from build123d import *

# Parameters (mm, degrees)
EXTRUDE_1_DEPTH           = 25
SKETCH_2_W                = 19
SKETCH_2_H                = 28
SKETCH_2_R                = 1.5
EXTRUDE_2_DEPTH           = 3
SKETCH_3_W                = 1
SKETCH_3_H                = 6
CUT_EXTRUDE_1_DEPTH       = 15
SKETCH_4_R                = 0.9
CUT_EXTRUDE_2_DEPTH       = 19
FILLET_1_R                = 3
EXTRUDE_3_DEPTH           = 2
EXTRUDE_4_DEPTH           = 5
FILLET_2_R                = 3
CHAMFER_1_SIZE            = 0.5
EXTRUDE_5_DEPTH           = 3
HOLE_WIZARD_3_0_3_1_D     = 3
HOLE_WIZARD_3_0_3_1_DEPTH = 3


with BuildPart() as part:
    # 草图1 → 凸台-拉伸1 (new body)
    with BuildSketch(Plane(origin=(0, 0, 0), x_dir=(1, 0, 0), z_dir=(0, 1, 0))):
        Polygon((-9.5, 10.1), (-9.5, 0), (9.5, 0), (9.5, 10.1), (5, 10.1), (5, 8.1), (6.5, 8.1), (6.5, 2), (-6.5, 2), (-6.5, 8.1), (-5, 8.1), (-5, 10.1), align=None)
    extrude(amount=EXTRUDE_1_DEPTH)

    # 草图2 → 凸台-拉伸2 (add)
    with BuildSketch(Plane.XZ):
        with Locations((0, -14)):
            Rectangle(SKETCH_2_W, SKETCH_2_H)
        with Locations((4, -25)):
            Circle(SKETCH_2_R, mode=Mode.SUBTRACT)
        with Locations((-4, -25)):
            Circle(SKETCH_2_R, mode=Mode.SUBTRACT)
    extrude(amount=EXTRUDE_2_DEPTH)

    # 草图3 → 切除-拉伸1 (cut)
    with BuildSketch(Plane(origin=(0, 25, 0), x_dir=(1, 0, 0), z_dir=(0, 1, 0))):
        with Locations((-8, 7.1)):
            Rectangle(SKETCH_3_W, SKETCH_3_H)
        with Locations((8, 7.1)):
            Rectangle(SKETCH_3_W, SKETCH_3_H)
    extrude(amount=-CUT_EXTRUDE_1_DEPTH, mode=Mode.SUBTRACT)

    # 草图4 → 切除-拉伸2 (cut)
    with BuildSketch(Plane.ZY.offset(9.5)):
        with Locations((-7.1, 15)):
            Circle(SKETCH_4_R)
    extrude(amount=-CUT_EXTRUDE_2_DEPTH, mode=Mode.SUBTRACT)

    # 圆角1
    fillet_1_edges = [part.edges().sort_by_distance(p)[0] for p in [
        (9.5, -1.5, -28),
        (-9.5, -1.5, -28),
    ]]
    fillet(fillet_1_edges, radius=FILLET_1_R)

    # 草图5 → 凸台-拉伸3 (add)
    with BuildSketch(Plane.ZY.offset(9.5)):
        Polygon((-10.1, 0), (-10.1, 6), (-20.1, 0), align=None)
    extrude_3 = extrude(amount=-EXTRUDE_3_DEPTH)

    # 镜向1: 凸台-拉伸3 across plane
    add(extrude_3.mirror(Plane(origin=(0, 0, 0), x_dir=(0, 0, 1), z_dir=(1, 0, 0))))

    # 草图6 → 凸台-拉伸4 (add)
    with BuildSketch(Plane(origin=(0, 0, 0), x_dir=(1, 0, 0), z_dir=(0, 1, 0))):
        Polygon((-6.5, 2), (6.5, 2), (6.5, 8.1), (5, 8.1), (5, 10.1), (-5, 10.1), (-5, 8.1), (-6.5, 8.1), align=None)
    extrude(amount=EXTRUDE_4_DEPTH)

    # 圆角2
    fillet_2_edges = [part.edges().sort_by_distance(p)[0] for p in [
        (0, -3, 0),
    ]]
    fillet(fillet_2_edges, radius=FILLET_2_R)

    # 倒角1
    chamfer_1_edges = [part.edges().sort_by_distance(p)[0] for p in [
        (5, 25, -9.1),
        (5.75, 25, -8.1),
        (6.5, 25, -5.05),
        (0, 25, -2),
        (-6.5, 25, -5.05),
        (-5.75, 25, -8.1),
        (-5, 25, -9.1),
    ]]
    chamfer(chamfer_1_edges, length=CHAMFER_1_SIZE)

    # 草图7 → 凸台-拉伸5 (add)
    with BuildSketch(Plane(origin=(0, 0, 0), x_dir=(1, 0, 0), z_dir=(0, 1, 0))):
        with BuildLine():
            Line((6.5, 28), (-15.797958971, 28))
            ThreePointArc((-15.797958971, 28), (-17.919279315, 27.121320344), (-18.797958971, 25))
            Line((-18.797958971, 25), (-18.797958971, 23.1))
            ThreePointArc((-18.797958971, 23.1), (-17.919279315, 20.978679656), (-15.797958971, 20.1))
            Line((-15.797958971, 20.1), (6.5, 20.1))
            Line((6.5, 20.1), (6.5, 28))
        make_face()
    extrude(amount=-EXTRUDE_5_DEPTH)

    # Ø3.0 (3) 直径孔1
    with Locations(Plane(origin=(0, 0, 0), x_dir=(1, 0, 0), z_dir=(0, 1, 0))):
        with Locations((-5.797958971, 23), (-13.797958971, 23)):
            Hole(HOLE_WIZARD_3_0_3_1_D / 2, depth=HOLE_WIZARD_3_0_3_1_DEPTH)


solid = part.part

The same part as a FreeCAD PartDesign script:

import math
import FreeCAD as App
import Part
import Sketcher

V = App.Vector
Q = App.Units.Quantity


def edges_at(feature, points):
    """Names of the edges that pass closest to the given points."""
    edges = feature.Shape.Edges
    near = lambda p: min(range(len(edges)), key=lambda i: edges[i].distToShape(Part.Vertex(*p))[0])
    return sorted({f"Edge{near(p) + 1}" for p in points})


def add_polygon(sketch, points):
    """Adds a closed chain of lines whose ends are joined by coincident constraints."""
    first, n = sketch.GeometryCount, len(points)
    for a, b in zip(points, points[1:] + points[:1]):
        sketch.addGeometry(Part.LineSegment(App.Vector(*a, 0), App.Vector(*b, 0)), False)
    for i in range(n):
        sketch.addConstraint(Sketcher.Constraint("Coincident", first + i, 2, first + (i + 1) % n, 1))

doc = App.newDocument("Part")
params = doc.addObject("Spreadsheet::Sheet", "Params")
for row, (alias, value) in enumerate([
    ("sketch1_width", "19 mm"),
    ("sketch1_width2", "13 mm"),
    ("sketch1_height", "2 mm"),
    ("sketch1_width3", "4.5 mm"),
    ("sketch1_height2", "10.1 mm"),
    ("pad1_length", "25 mm"),
    ("sketch2_diameter", "3 mm"),
    ("sketch2_width", "19 mm"),
    ("sketch2_height", "28 mm"),
    ("pad2_length", "3 mm"),
    ("sketch3_width", "1 mm"),
    ("sketch3_height", "6 mm"),
    ("pocket1_length", "15 mm"),
    ("sketch4_diameter", "1.8 mm"),
    ("pocket2_length", "19 mm"),
    ("fillet_radius", "3 mm"),
    ("sketch5_width", "6 mm"),
    ("sketch5_height", "10 mm"),
    ("pad3_length", "2 mm"),
    ("sketch6_width", "13 mm"),
    ("sketch6_width2", "10 mm"),
    ("sketch6_height", "2 mm"),
    ("sketch6_height2", "6.1 mm"),
    ("pad4_length", "5 mm"),
    ("fillet2_radius", "3 mm"),
    ("chamfer_size", "0.5 mm"),
    ("sketch7_radius", "3 mm"),
    ("sketch7_height", "1.9 mm"),
    ("pad5_length", "3 mm"),
    ("sketch8_diameter", "3 mm"),
    ("hole_diameter", "3 mm"),
    ("hole_depth", "3 mm"),
], start=1):
    params.set(f"A{row}", alias)
    params.set(f"B{row}", "=" + value)
    params.setAlias(f"B{row}", alias)

body = doc.addObject("PartDesign::Body", "Body")

# Sketch on XZ plane
sketch1 = body.newObject("Sketcher::SketchObject", "Sketch")
sketch1.AttachmentSupport = (doc.getObject("XZ_Plane"), [""])
sketch1.MapMode = "FlatFace"
add_polygon(sketch1, [(-9.5, -10.1), (-9.5, 0), (9.5, 0), (9.5, -10.1), (5, -10.1), (5, -8.1), (6.5, -8.1), (6.5, -2), (-6.5, -2), (-6.5, -8.1), (-5, -8.1), (-5, -10.1)])  # lines 0-11
sketch1.addConstraint(Sketcher.Constraint("Vertical", 0))
sketch1.addConstraint(Sketcher.Constraint("Horizontal", 1))
sketch1.addConstraint(Sketcher.Constraint("Vertical", 2))
sketch1.addConstraint(Sketcher.Constraint("Horizontal", 3))
sketch1.addConstraint(Sketcher.Constraint("Vertical", 4))
sketch1.addConstraint(Sketcher.Constraint("Horizontal", 5))
sketch1.addConstraint(Sketcher.Constraint("Vertical", 6))
sketch1.addConstraint(Sketcher.Constraint("Horizontal", 7))
sketch1.addConstraint(Sketcher.Constraint("Vertical", 8))
sketch1.addConstraint(Sketcher.Constraint("Horizontal", 9))
sketch1.addConstraint(Sketcher.Constraint("Vertical", 10))
sketch1.addConstraint(Sketcher.Constraint("Horizontal", 11))
sketch1.addConstraint(Sketcher.Constraint("Symmetric", 0, 2, 1, 2, -1, 1))
sketch1.addConstraint(Sketcher.Constraint("Symmetric", 5, 2, 8, 2, -2))
sketch1.addConstraint(Sketcher.Constraint("Symmetric", 3, 2, 10, 2, -2))
sketch1.addConstraint(Sketcher.Constraint("DistanceX", 1, 1, 1, 2, Q("19 mm")))
sketch1.addConstraint(Sketcher.Constraint("DistanceX", 7, 2, 7, 1, Q("13 mm")))
sketch1.addConstraint(Sketcher.Constraint("DistanceY", 4, 1, 4, 2, Q("2 mm")))
sketch1.addConstraint(Sketcher.Constraint("DistanceX", 3, 2, 3, 1, Q("4.5 mm")))
sketch1.addConstraint(Sketcher.Constraint("DistanceY", 0, 1, 0, 2, Q("10.1 mm")))
sketch1.addConstraint(Sketcher.Constraint("DistanceY", 6, 1, 6, 2, Q("6.1 mm")))
sketch1.setExpression("Constraints[27]", "Params.sketch1_width")
sketch1.setExpression("Constraints[28]", "Params.sketch1_width2")
sketch1.setExpression("Constraints[29]", "Params.sketch1_height")
sketch1.setExpression("Constraints[30]", "Params.sketch1_width3")
sketch1.setExpression("Constraints[31]", "Params.sketch1_height2")
pad1 = body.newObject("PartDesign::Pad", "Pad")
pad1.Profile = sketch1
pad1.setExpression("Length", "Params.pad1_length")
pad1.Reversed = True

# Sketch on XZ plane
sketch2 = body.newObject("Sketcher::SketchObject", "Sketch001")
sketch2.AttachmentSupport = (doc.getObject("XZ_Plane"), [""])
sketch2.MapMode = "FlatFace"
add_polygon(sketch2, [(-9.5, 0), (-9.5, -28), (9.5, -28), (9.5, 0)])  # lines 0-3
sketch2.addGeometry(Part.Circle(V(-4, -25, 0), V(0, 0, 1), 1.5), False)  # 4
sketch2.addGeometry(Part.Circle(V(4, -25, 0), V(0, 0, 1), 1.5), False)  # 5
sketch2.addConstraint(Sketcher.Constraint("Vertical", 0))
sketch2.addConstraint(Sketcher.Constraint("Horizontal", 1))
sketch2.addConstraint(Sketcher.Constraint("Vertical", 2))
sketch2.addConstraint(Sketcher.Constraint("Horizontal", 3))
sketch2.addConstraint(Sketcher.Constraint("Equal", 4, 5))
sketch2.addConstraint(Sketcher.Constraint("Symmetric", 2, 2, 3, 2, -1, 1))
sketch2.addConstraint(Sketcher.Constraint("Symmetric", 4, 3, 5, 3, -2))
sketch2.addConstraint(Sketcher.Constraint("Diameter", 4, Q("3 mm")))
sketch2.addConstraint(Sketcher.Constraint("DistanceX", 1, 1, 1, 2, Q("19 mm")))
sketch2.addConstraint(Sketcher.Constraint("DistanceY", 0, 2, 0, 1, Q("28 mm")))
sketch2.addConstraint(Sketcher.Constraint("DistanceX", 4, 3, -1, 1, Q("4 mm")))
sketch2.addConstraint(Sketcher.Constraint("DistanceY", 4, 3, -1, 1, Q("25 mm")))
sketch2.setExpression("Constraints[11]", "Params.sketch2_diameter")
sketch2.setExpression("Constraints[12]", "Params.sketch2_width")
sketch2.setExpression("Constraints[13]", "Params.sketch2_height")
pad2 = body.newObject("PartDesign::Pad", "Pad001")
pad2.Profile = sketch2
pad2.setExpression("Length", "Params.pad2_length")

# Sketch on XZ plane
sketch3 = body.newObject("Sketcher::SketchObject", "Sketch002")
sketch3.AttachmentSupport = (doc.getObject("XZ_Plane"), [""])
sketch3.MapMode = "FlatFace"
sketch3.AttachmentOffset = App.Placement(V(0, 0, -25), App.Rotation())
add_polygon(sketch3, [(-8.5, -10.1), (-8.5, -4.1), (-7.5, -4.1), (-7.5, -10.1)])  # lines 0-3
add_polygon(sketch3, [(7.5, -10.1), (7.5, -4.1), (8.5, -4.1), (8.5, -10.1)])  # lines 4-7
sketch3.addConstraint(Sketcher.Constraint("Vertical", 0))
sketch3.addConstraint(Sketcher.Constraint("Horizontal", 1))
sketch3.addConstraint(Sketcher.Constraint("Vertical", 2))
sketch3.addConstraint(Sketcher.Constraint("Horizontal", 3))
sketch3.addConstraint(Sketcher.Constraint("Vertical", 4))
sketch3.addConstraint(Sketcher.Constraint("Horizontal", 5))
sketch3.addConstraint(Sketcher.Constraint("Vertical", 6))
sketch3.addConstraint(Sketcher.Constraint("Horizontal", 7))
sketch3.addConstraint(Sketcher.Constraint("Symmetric", 1, 2, 4, 2, -2))
sketch3.addConstraint(Sketcher.Constraint("Symmetric", 3, 2, 6, 2, -2))
sketch3.addConstraint(Sketcher.Constraint("DistanceX", 1, 1, 1, 2, Q("1 mm")))
sketch3.addConstraint(Sketcher.Constraint("DistanceY", 0, 1, 0, 2, Q("6 mm")))
sketch3.addConstraint(Sketcher.Constraint("DistanceX", 1, 2, 4, 2, Q("15 mm")))
sketch3.addConstraint(Sketcher.Constraint("DistanceY", 0, 2, -1, 1, Q("4.1 mm")))
sketch3.setExpression("Constraints[18]", "Params.sketch3_width")
sketch3.setExpression("Constraints[19]", "Params.sketch3_height")
pocket1 = body.newObject("PartDesign::Pocket", "Pocket")
pocket1.Profile = sketch3
pocket1.setExpression("Length", "Params.pocket1_length")
pocket1.Reversed = True

# Sketch on YZ plane
sketch4 = body.newObject("Sketcher::SketchObject", "Sketch003")
sketch4.AttachmentSupport = (doc.getObject("YZ_Plane"), [""])
sketch4.MapMode = "FlatFace"
sketch4.AttachmentOffset = App.Placement(V(0, 0, -9.5), App.Rotation())
sketch4.addGeometry(Part.Circle(V(15, -7.1, 0), V(0, 0, 1), 0.9), False)
sketch4.addConstraint(Sketcher.Constraint("Diameter", 0, Q("1.8 mm")))
sketch4.addConstraint(Sketcher.Constraint("DistanceX", -1, 1, 0, 3, Q("15 mm")))
sketch4.addConstraint(Sketcher.Constraint("DistanceY", 0, 3, -1, 1, Q("7.1 mm")))
sketch4.setExpression("Constraints[0]", "Params.sketch4_diameter")
pocket2 = body.newObject("PartDesign::Pocket", "Pocket001")
pocket2.Profile = sketch4
pocket2.setExpression("Length", "Params.pocket2_length")
pocket2.Reversed = True
doc.recompute()

fillet = body.newObject("PartDesign::Fillet", "Fillet")
fillet.Base = (pocket2, edges_at(pocket2, [(9.5, -1.5, -28), (-9.5, -1.5, -28)]))
fillet.setExpression("Radius", "Params.fillet_radius")

# Sketch on YZ plane
sketch5 = body.newObject("Sketcher::SketchObject", "Sketch004")
sketch5.AttachmentSupport = (doc.getObject("YZ_Plane"), [""])
sketch5.MapMode = "FlatFace"
sketch5.AttachmentOffset = App.Placement(V(0, 0, -9.5), App.Rotation())
add_polygon(sketch5, [(0, -10), (6, -10), (0, -20)])  # lines 0-2
sketch5.addConstraint(Sketcher.Constraint("Horizontal", 0))
sketch5.addConstraint(Sketcher.Constraint("Vertical", 2))
sketch5.addConstraint(Sketcher.Constraint("PointOnObject", 1, 2, -2))
sketch5.addConstraint(Sketcher.Constraint("DistanceX", 0, 1, 0, 2, Q("6 mm")))
sketch5.addConstraint(Sketcher.Constraint("DistanceY", 2, 1, 2, 2, Q("10 mm")))
sketch5.addConstraint(Sketcher.Constraint("DistanceY", 0, 2, -1, 1, Q("10.1 mm")))
sketch5.setExpression("Constraints[6]", "Params.sketch5_width")
sketch5.setExpression("Constraints[7]", "Params.sketch5_height")
pad3 = body.newObject("PartDesign::Pad", "Pad002")
pad3.Profile = sketch5
pad3.setExpression("Length", "Params.pad3_length")
doc.recompute()

mirrored = body.newObject("PartDesign::Mirrored", "Mirrored")
mirrored.Originals = [pad3]
mirrored.MirrorPlane = (doc.getObject("YZ_Plane"), [""])
body.Tip = mirrored

# Sketch on XZ plane
sketch6 = body.newObject("Sketcher::SketchObject", "Sketch005")
sketch6.AttachmentSupport = (doc.getObject("XZ_Plane"), [""])
sketch6.MapMode = "FlatFace"
add_polygon(sketch6, [(-6.5, -2), (6.5, -2), (6.5, -8.1), (5, -8.1), (5, -10.1), (-5, -10.1), (-5, -8.1), (-6.5, -8.1)])  # lines 0-7
sketch6.addConstraint(Sketcher.Constraint("Horizontal", 0))
sketch6.addConstraint(Sketcher.Constraint("Vertical", 1))
sketch6.addConstraint(Sketcher.Constraint("Horizontal", 2))
sketch6.addConstraint(Sketcher.Constraint("Vertical", 3))
sketch6.addConstraint(Sketcher.Constraint("Horizontal", 4))
sketch6.addConstraint(Sketcher.Constraint("Vertical", 5))
sketch6.addConstraint(Sketcher.Constraint("Horizontal", 6))
sketch6.addConstraint(Sketcher.Constraint("Vertical", 7))
sketch6.addConstraint(Sketcher.Constraint("Symmetric", 2, 2, 5, 2, -2))
sketch6.addConstraint(Sketcher.Constraint("Equal", 2, 6))
sketch6.addConstraint(Sketcher.Constraint("DistanceX", 0, 1, 0, 2, Q("13 mm")))
sketch6.addConstraint(Sketcher.Constraint("DistanceX", 4, 2, 4, 1, Q("10 mm")))
sketch6.addConstraint(Sketcher.Constraint("DistanceY", 3, 2, 3, 1, Q("2 mm")))
sketch6.addConstraint(Sketcher.Constraint("DistanceY", 1, 2, 1, 1, Q("6.1 mm")))
sketch6.addConstraint(Sketcher.Constraint("DistanceY", 0, 2, -1, 1, Q("2 mm")))
sketch6.setExpression("Constraints[18]", "Params.sketch6_width")
sketch6.setExpression("Constraints[19]", "Params.sketch6_width2")
sketch6.setExpression("Constraints[20]", "Params.sketch6_height")
sketch6.setExpression("Constraints[21]", "Params.sketch6_height2")
pad4 = body.newObject("PartDesign::Pad", "Pad003")
pad4.Profile = sketch6
pad4.setExpression("Length", "Params.pad4_length")
pad4.Reversed = True
doc.recompute()

fillet2 = body.newObject("PartDesign::Fillet", "Fillet001")
fillet2.Base = (pad4, edges_at(pad4, [(0, -3, 0)]))
fillet2.setExpression("Radius", "Params.fillet2_radius")
doc.recompute()

chamfer = body.newObject("PartDesign::Chamfer", "Chamfer")
chamfer.Base = (fillet2, edges_at(fillet2, [
    (5, 25, -9.1),
    (5.75, 25, -8.1),
    (6.5, 25, -5.05),
    (0, 25, -2),
    (-6.5, 25, -5.05),
    (-5.75, 25, -8.1),
    (-5, 25, -9.1),
]))
chamfer.setExpression("Size", "Params.chamfer_size")

# Sketch on XZ plane
sketch7 = body.newObject("Sketcher::SketchObject", "Sketch006")
sketch7.AttachmentSupport = (doc.getObject("XZ_Plane"), [""])
sketch7.MapMode = "FlatFace"
sketch7.addGeometry(Part.LineSegment(V(6.5, -28, 0), V(-15.8, -28, 0)), False)
sketch7.addGeometry(Part.ArcOfCircle(Part.Circle(V(-15.8, -25, 0), V(0, 0, 1), 3), math.radians(180), math.radians(270)), False)
sketch7.addGeometry(Part.LineSegment(V(-18.8, -25, 0), V(-18.8, -23.1, 0)), False)
sketch7.addGeometry(Part.ArcOfCircle(Part.Circle(V(-15.8, -23.1, 0), V(0, 0, 1), 3), math.radians(90), math.radians(180)), False)
sketch7.addGeometry(Part.LineSegment(V(-15.8, -20.1, 0), V(6.5, -20.1, 0)), False)
sketch7.addGeometry(Part.LineSegment(V(6.5, -20.1, 0), V(6.5, -28, 0)), False)
sketch7.addConstraint(Sketcher.Constraint("Tangent", 0, 2, 1, 2))
sketch7.addConstraint(Sketcher.Constraint("Tangent", 1, 1, 2, 1))
sketch7.addConstraint(Sketcher.Constraint("Tangent", 2, 2, 3, 2))
sketch7.addConstraint(Sketcher.Constraint("Tangent", 3, 1, 4, 1))
sketch7.addConstraint(Sketcher.Constraint("Coincident", 4, 2, 5, 1))
sketch7.addConstraint(Sketcher.Constraint("Coincident", 5, 2, 0, 1))
sketch7.addConstraint(Sketcher.Constraint("Horizontal", 0))
sketch7.addConstraint(Sketcher.Constraint("Vertical", 2))
sketch7.addConstraint(Sketcher.Constraint("Horizontal", 4))
sketch7.addConstraint(Sketcher.Constraint("Vertical", 5))
sketch7.addConstraint(Sketcher.Constraint("Equal", 1, 3))
sketch7.addConstraint(Sketcher.Constraint("Radius", 1, Q("3 mm")))
sketch7.addConstraint(Sketcher.Constraint("DistanceY", 2, 1, 2, 2, Q("1.9 mm")))
sketch7.addConstraint(Sketcher.Constraint("DistanceY", 1, 3, -1, 1, Q("25 mm")))
sketch7.addConstraint(Sketcher.Constraint("DistanceX", -1, 1, 4, 2, Q("6.5 mm")))
sketch7.addConstraint(Sketcher.Constraint("DistanceX", 0, 2, 0, 1, Q("22.297959 mm")))
sketch7.setExpression("Constraints[11]", "Params.sketch7_radius")
sketch7.setExpression("Constraints[12]", "Params.sketch7_height")
pad5 = body.newObject("PartDesign::Pad", "Pad004")
pad5.Profile = sketch7
pad5.setExpression("Length", "Params.pad5_length")

# Sketch on XZ plane
sketch8 = body.newObject("Sketcher::SketchObject", "Sketch007")
sketch8.AttachmentSupport = (doc.getObject("XZ_Plane"), [""])
sketch8.MapMode = "FlatFace"
sketch8.addGeometry(Part.Circle(V(-5.8, -23, 0), V(0, 0, 1), 1.5), False)
sketch8.addGeometry(Part.Circle(V(-13.8, -23, 0), V(0, 0, 1), 1.5), False)
sketch8.addConstraint(Sketcher.Constraint("Equal", 0, 1))
sketch8.addConstraint(Sketcher.Constraint("Horizontal", 0, 3, 1, 3))
sketch8.addConstraint(Sketcher.Constraint("Diameter", 0, Q("3 mm")))
sketch8.addConstraint(Sketcher.Constraint("DistanceY", 0, 3, -1, 1, Q("23 mm")))
sketch8.addConstraint(Sketcher.Constraint("DistanceX", 1, 3, 0, 3, Q("8 mm")))
sketch8.addConstraint(Sketcher.Constraint("DistanceX", 0, 3, -1, 1, Q("5.797959 mm")))
sketch8.setExpression("Constraints[2]", "Params.sketch8_diameter")
doc.recompute()
hole = body.newObject("PartDesign::Hole", "Hole")
hole.Profile = sketch8
hole.ThreadType = "None"
hole.setExpression("Diameter", "Params.hole_diameter")
hole.DepthType = "Dimension"
hole.setExpression("Depth", "Params.hole_depth")
hole.DrillPoint = "Flat"
hole.Reversed = True

doc.recompute()
